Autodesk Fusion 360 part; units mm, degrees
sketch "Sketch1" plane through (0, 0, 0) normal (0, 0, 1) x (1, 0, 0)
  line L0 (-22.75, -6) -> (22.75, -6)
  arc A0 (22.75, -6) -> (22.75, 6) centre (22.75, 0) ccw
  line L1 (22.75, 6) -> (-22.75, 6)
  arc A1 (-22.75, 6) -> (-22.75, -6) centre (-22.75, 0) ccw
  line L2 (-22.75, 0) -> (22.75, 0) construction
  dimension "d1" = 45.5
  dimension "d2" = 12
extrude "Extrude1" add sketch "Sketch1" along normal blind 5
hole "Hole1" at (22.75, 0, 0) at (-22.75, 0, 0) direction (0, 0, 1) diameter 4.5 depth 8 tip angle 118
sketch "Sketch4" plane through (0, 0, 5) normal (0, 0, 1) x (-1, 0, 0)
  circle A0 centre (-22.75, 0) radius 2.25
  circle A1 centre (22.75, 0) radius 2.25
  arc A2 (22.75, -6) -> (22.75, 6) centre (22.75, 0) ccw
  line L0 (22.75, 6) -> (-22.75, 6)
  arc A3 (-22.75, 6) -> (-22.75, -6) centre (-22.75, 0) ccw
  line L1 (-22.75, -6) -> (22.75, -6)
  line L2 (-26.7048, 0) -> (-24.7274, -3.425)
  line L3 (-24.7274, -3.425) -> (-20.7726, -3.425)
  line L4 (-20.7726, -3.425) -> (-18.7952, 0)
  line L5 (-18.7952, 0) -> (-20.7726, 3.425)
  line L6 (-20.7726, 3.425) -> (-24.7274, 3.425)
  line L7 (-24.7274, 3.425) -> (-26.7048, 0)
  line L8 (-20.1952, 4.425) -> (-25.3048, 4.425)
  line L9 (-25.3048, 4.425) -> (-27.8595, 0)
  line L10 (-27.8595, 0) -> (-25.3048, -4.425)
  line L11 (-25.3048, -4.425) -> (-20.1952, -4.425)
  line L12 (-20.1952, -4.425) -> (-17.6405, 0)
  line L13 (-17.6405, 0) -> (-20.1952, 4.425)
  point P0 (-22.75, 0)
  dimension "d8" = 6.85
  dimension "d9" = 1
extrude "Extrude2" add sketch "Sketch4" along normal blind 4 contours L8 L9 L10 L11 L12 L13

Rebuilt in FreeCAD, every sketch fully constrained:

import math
import FreeCAD as App
import Part
import Sketcher
Q = App.Units.Quantity


def add_polygon(sketch, points):
    """Adds a closed chain of lines whose ends are joined by coincident constraints."""
    first, n = sketch.GeometryCount, len(points)
    for a, b in zip(points, points[1:] + points[:1]):
        sketch.addGeometry(Part.LineSegment(App.Vector(*a, 0), App.Vector(*b, 0)), False)
    for i in range(n):
        sketch.addConstraint(Sketcher.Constraint("Coincident", first + i, 2, first + (i + 1) % n, 1))

doc = App.newDocument("Part")
body = doc.addObject("PartDesign::Body", "Body")

# Sketch on XY plane
sketch1 = body.newObject("Sketcher::SketchObject", "Sketch")
sketch1.AttachmentSupport = (doc.getObject("XY_Plane"), [""])
sketch1.MapMode = "FlatFace"
sketch1.addGeometry([
    Part.ArcOfCircle(Part.Circle(App.Vector(-23, 0, 0), App.Vector(0, 0, 1), 6), math.radians(90), math.radians(270)),
    Part.LineSegment(App.Vector(-23, -6, 0), App.Vector(23, -6, 0)),
    Part.ArcOfCircle(Part.Circle(App.Vector(23, 0, 0), App.Vector(0, 0, 1), 6), math.radians(-90), math.radians(90)),
    Part.LineSegment(App.Vector(23, 6, 0), App.Vector(-23, 6, 0)),
], False)
sketch1.addConstraint([
    Sketcher.Constraint("Tangent", 0, 2, 1, 1),
    Sketcher.Constraint("Tangent", 1, 2, 2, 1),
    Sketcher.Constraint("Tangent", 2, 2, 3, 1),
    Sketcher.Constraint("Tangent", 3, 2, 0, 1),
    Sketcher.Constraint("Horizontal", 1),
    Sketcher.Constraint("Horizontal", 3),
    Sketcher.Constraint("Symmetric", 0, 3, 2, 3, -1, 1),
    Sketcher.Constraint("Radius", 0, 6.0),
    Sketcher.Constraint("DistanceX", 1, 1, 1, 2, 45.5),
])
pad1 = body.newObject("PartDesign::Pad", "Pad")
pad1.Profile = sketch1
pad1.Length = 5

# Sketch on XY plane
sketch2 = body.newObject("Sketcher::SketchObject", "Sketch001")
sketch2.AttachmentSupport = (doc.getObject("XY_Plane"), [""])
sketch2.MapMode = "FlatFace"
sketch2.addGeometry([
    Part.Circle(App.Vector(22.8, 0, 0), App.Vector(0, 0, 1), 2.2),
    Part.Circle(App.Vector(-22.8, 0, 0), App.Vector(0, 0, 1), 2.2),
], False)
sketch2.addConstraint([
    Sketcher.Constraint("Equal", 0, 1),
    Sketcher.Constraint("Symmetric", 0, 3, 1, 3, -1, 1),
    Sketcher.Constraint("PointOnObject", 0, 3, -1),
    Sketcher.Constraint("Diameter", 0, 4.5),
    Sketcher.Constraint("DistanceX", 1, 3, 0, 3, 45.5),
])
doc.recompute()
hole = body.newObject("PartDesign::Hole", "Hole")
hole.Profile = sketch2
hole.ThreadType = "None"
hole.Diameter = 4.5
hole.DepthType = "Dimension"
hole.Depth = 8
hole.DrillPoint = "Angled"
hole.DrillPointAngle = 118
hole.Reversed = True

# Sketch on XY plane
sketch3 = body.newObject("Sketcher::SketchObject", "Sketch002")
sketch3.AttachmentSupport = (doc.getObject("XY_Plane"), [""])
sketch3.MapMode = "FlatFace"
sketch3.AttachmentOffset = App.Placement(App.Vector(0, 0, 5), App.Rotation())
add_polygon(sketch3, [(17.6, 0), (20.2, -4.4), (25.3, -4.4), (27.9, 0), (25.3, 4.4), (20.2, 4.4)])  # lines 0-5
add_polygon(sketch3, [(24.7, 3.4), (26.7, 0), (24.7, -3.4), (20.8, -3.4), (18.8, 0), (20.8, 3.4)])  # lines 6-11
sketch3.addConstraint([
    Sketcher.Constraint("Horizontal", 1),
    Sketcher.Constraint("Horizontal", 4),
    Sketcher.Constraint("Horizontal", 8),
    Sketcher.Constraint("Horizontal", 11),
    Sketcher.Constraint("Symmetric", 1, 2, 3, 2, -1),
    Sketcher.Constraint("Symmetric", 8, 2, 10, 2, -1),
    Sketcher.Constraint("PointOnObject", 2, 2, -1),
    Sketcher.Constraint("PointOnObject", 5, 2, -1),
    Sketcher.Constraint("PointOnObject", 6, 2, -1),
    Sketcher.Constraint("PointOnObject", 9, 2, -1),
    Sketcher.Constraint("Parallel", 0, 3),
    Sketcher.Constraint("Parallel", 2, 5),
    Sketcher.Constraint("Parallel", 3, 6),
    Sketcher.Constraint("Parallel", 5, 7),
    Sketcher.Constraint("Parallel", 6, 9),
    Sketcher.Constraint("DistanceY", 1, 2, 7, 2, 1.0),
    Sketcher.Constraint("Angle", 0, Q("-60.0007 deg")),
    Sketcher.Constraint("DistanceX", 1, 2, 6, 2, 1.4),
    Sketcher.Constraint("DistanceX", 9, 2, 0, 2, 1.4),
    Sketcher.Constraint("DistanceY", 1, 2, 3, 2, 8.85),
    Sketcher.Constraint("DistanceX", 1, 1, 1, 2, 5.1096),
    Sketcher.Constraint("DistanceX", -1, 1, 0, 2, 20.1952),
])
pad2 = body.newObject("PartDesign::Pad", "Pad001")
pad2.Profile = sketch3
pad2.Length = 4

doc.recompute()
